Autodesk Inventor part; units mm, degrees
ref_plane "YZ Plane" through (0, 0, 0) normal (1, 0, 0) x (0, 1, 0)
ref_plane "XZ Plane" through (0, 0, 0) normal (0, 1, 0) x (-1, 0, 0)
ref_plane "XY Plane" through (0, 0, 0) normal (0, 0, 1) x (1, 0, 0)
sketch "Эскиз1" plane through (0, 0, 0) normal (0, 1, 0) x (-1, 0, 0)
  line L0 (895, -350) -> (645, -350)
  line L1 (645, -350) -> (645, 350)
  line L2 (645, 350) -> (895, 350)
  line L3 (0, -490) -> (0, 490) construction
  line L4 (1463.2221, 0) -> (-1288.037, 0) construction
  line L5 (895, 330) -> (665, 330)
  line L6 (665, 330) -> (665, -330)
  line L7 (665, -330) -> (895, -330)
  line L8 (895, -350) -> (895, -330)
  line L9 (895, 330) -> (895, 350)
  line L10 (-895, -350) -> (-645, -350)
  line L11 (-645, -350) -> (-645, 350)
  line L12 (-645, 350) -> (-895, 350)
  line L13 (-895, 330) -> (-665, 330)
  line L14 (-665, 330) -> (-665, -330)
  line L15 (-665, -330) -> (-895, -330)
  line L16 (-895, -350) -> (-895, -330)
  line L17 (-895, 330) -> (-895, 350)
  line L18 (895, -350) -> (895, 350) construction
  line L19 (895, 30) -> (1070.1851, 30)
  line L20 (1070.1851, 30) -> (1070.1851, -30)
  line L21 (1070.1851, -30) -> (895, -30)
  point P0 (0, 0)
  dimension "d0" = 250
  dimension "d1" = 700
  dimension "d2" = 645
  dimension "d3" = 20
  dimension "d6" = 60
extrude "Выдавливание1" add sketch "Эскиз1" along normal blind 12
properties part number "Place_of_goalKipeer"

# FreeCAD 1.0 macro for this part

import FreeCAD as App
import Part
import Sketcher
Q = App.Units.Quantity

doc = App.newDocument("Part")
body = doc.addObject("PartDesign::Body", "Body")
body.AllowCompound = True

sketch1 = body.newObject("Sketcher::SketchObject", "Sketch")
sketch1.AttachmentSupport = (doc.getObject("XZ_Plane"), [""])
sketch1.MapMode = "FlatFace"
sketch1.addGeometry([
    Part.LineSegment(App.Vector(-645, -350, 0), App.Vector(-895, -350, 0)),
    Part.LineSegment(App.Vector(-895, -350, 0), App.Vector(-895, -330, 0)),
    Part.LineSegment(App.Vector(-895, -330, 0), App.Vector(-665, -330, 0)),
    Part.LineSegment(App.Vector(-665, -330, 0), App.Vector(-665, 330, 0)),
    Part.LineSegment(App.Vector(-665, 330, 0), App.Vector(-895, 330, 0)),
    Part.LineSegment(App.Vector(-895, 330, 0), App.Vector(-895, 350, 0)),
    Part.LineSegment(App.Vector(-895, 350, 0), App.Vector(-645, 350, 0)),
    Part.LineSegment(App.Vector(-645, 350, 0), App.Vector(-645, -350, 0)),
    Part.LineSegment(App.Vector(895, -330, 0), App.Vector(895, -350, 0)),
    Part.LineSegment(App.Vector(895, -350, 0), App.Vector(645, -350, 0)),
    Part.LineSegment(App.Vector(645, -350, 0), App.Vector(645, 350, 0)),
    Part.LineSegment(App.Vector(645, 350, 0), App.Vector(895, 350, 0)),
    Part.LineSegment(App.Vector(895, 350, 0), App.Vector(895, 330, 0)),
    Part.LineSegment(App.Vector(895, 330, 0), App.Vector(665, 330, 0)),
    Part.LineSegment(App.Vector(665, 330, 0), App.Vector(665, -330, 0)),
    Part.LineSegment(App.Vector(665, -330, 0), App.Vector(895, -330, 0)),
], False)
sketch1.addConstraint([
    Sketcher.Constraint("Coincident", 0, 2, 1, 1),
    Sketcher.Constraint("Coincident", 1, 2, 2, 1),
    Sketcher.Constraint("Coincident", 2, 2, 3, 1),
    Sketcher.Constraint("Coincident", 3, 2, 4, 1),
    Sketcher.Constraint("Coincident", 4, 2, 5, 1),
    Sketcher.Constraint("Coincident", 5, 2, 6, 1),
    Sketcher.Constraint("Coincident", 6, 2, 7, 1),
    Sketcher.Constraint("Coincident", 7, 2, 0, 1),
    Sketcher.Constraint("Coincident", 8, 2, 9, 1),
    Sketcher.Constraint("Coincident", 9, 2, 10, 1),
    Sketcher.Constraint("Coincident", 10, 2, 11, 1),
    Sketcher.Constraint("Coincident", 11, 2, 12, 1),
    Sketcher.Constraint("Coincident", 12, 2, 13, 1),
    Sketcher.Constraint("Coincident", 13, 2, 14, 1),
    Sketcher.Constraint("Coincident", 14, 2, 15, 1),
    Sketcher.Constraint("Coincident", 15, 2, 8, 1),
    Sketcher.Constraint("Horizontal", 0),
    Sketcher.Constraint("Vertical", 1),
    Sketcher.Constraint("Horizontal", 2),
    Sketcher.Constraint("Vertical", 3),
    Sketcher.Constraint("Horizontal", 4),
    Sketcher.Constraint("Vertical", 5),
    Sketcher.Constraint("Horizontal", 6),
    Sketcher.Constraint("Vertical", 7),
    Sketcher.Constraint("Vertical", 8),
    Sketcher.Constraint("Horizontal", 9),
    Sketcher.Constraint("Vertical", 10),
    Sketcher.Constraint("Horizontal", 11),
    Sketcher.Constraint("Vertical", 12),
    Sketcher.Constraint("Horizontal", 13),
    Sketcher.Constraint("Vertical", 14),
    Sketcher.Constraint("Horizontal", 15),
    Sketcher.Constraint("Symmetric", 5, 2, 8, 2, -1, 1),
    Sketcher.Constraint("Symmetric", 7, 2, 10, 2, -1, 1),
    Sketcher.Constraint("Symmetric", 1, 2, 12, 2, -1, 1),
    Sketcher.Constraint("Symmetric", 3, 2, 14, 2, -1, 1),
    Sketcher.Constraint("Symmetric", 0, 2, 8, 2, -2),
    Sketcher.Constraint("Horizontal", 4, 2, 12, 2),
    Sketcher.Constraint("DistanceX", 0, 2, 0, 1, Q("250 mm")),
    Sketcher.Constraint("DistanceY", 1, 1, 1, 2, Q("20 mm")),
    Sketcher.Constraint("DistanceY", 7, 2, 7, 1, Q("700 mm")),
    Sketcher.Constraint("DistanceX", 6, 2, -1, 1, Q("645 mm")),
    Sketcher.Constraint("DistanceX", 3, 2, 6, 2, Q("20 mm")),
])
pad1 = body.newObject("PartDesign::Pad", "Pad")
pad1.Profile = sketch1
pad1.Length = 12
pad1.Reversed = True

doc.recompute()
